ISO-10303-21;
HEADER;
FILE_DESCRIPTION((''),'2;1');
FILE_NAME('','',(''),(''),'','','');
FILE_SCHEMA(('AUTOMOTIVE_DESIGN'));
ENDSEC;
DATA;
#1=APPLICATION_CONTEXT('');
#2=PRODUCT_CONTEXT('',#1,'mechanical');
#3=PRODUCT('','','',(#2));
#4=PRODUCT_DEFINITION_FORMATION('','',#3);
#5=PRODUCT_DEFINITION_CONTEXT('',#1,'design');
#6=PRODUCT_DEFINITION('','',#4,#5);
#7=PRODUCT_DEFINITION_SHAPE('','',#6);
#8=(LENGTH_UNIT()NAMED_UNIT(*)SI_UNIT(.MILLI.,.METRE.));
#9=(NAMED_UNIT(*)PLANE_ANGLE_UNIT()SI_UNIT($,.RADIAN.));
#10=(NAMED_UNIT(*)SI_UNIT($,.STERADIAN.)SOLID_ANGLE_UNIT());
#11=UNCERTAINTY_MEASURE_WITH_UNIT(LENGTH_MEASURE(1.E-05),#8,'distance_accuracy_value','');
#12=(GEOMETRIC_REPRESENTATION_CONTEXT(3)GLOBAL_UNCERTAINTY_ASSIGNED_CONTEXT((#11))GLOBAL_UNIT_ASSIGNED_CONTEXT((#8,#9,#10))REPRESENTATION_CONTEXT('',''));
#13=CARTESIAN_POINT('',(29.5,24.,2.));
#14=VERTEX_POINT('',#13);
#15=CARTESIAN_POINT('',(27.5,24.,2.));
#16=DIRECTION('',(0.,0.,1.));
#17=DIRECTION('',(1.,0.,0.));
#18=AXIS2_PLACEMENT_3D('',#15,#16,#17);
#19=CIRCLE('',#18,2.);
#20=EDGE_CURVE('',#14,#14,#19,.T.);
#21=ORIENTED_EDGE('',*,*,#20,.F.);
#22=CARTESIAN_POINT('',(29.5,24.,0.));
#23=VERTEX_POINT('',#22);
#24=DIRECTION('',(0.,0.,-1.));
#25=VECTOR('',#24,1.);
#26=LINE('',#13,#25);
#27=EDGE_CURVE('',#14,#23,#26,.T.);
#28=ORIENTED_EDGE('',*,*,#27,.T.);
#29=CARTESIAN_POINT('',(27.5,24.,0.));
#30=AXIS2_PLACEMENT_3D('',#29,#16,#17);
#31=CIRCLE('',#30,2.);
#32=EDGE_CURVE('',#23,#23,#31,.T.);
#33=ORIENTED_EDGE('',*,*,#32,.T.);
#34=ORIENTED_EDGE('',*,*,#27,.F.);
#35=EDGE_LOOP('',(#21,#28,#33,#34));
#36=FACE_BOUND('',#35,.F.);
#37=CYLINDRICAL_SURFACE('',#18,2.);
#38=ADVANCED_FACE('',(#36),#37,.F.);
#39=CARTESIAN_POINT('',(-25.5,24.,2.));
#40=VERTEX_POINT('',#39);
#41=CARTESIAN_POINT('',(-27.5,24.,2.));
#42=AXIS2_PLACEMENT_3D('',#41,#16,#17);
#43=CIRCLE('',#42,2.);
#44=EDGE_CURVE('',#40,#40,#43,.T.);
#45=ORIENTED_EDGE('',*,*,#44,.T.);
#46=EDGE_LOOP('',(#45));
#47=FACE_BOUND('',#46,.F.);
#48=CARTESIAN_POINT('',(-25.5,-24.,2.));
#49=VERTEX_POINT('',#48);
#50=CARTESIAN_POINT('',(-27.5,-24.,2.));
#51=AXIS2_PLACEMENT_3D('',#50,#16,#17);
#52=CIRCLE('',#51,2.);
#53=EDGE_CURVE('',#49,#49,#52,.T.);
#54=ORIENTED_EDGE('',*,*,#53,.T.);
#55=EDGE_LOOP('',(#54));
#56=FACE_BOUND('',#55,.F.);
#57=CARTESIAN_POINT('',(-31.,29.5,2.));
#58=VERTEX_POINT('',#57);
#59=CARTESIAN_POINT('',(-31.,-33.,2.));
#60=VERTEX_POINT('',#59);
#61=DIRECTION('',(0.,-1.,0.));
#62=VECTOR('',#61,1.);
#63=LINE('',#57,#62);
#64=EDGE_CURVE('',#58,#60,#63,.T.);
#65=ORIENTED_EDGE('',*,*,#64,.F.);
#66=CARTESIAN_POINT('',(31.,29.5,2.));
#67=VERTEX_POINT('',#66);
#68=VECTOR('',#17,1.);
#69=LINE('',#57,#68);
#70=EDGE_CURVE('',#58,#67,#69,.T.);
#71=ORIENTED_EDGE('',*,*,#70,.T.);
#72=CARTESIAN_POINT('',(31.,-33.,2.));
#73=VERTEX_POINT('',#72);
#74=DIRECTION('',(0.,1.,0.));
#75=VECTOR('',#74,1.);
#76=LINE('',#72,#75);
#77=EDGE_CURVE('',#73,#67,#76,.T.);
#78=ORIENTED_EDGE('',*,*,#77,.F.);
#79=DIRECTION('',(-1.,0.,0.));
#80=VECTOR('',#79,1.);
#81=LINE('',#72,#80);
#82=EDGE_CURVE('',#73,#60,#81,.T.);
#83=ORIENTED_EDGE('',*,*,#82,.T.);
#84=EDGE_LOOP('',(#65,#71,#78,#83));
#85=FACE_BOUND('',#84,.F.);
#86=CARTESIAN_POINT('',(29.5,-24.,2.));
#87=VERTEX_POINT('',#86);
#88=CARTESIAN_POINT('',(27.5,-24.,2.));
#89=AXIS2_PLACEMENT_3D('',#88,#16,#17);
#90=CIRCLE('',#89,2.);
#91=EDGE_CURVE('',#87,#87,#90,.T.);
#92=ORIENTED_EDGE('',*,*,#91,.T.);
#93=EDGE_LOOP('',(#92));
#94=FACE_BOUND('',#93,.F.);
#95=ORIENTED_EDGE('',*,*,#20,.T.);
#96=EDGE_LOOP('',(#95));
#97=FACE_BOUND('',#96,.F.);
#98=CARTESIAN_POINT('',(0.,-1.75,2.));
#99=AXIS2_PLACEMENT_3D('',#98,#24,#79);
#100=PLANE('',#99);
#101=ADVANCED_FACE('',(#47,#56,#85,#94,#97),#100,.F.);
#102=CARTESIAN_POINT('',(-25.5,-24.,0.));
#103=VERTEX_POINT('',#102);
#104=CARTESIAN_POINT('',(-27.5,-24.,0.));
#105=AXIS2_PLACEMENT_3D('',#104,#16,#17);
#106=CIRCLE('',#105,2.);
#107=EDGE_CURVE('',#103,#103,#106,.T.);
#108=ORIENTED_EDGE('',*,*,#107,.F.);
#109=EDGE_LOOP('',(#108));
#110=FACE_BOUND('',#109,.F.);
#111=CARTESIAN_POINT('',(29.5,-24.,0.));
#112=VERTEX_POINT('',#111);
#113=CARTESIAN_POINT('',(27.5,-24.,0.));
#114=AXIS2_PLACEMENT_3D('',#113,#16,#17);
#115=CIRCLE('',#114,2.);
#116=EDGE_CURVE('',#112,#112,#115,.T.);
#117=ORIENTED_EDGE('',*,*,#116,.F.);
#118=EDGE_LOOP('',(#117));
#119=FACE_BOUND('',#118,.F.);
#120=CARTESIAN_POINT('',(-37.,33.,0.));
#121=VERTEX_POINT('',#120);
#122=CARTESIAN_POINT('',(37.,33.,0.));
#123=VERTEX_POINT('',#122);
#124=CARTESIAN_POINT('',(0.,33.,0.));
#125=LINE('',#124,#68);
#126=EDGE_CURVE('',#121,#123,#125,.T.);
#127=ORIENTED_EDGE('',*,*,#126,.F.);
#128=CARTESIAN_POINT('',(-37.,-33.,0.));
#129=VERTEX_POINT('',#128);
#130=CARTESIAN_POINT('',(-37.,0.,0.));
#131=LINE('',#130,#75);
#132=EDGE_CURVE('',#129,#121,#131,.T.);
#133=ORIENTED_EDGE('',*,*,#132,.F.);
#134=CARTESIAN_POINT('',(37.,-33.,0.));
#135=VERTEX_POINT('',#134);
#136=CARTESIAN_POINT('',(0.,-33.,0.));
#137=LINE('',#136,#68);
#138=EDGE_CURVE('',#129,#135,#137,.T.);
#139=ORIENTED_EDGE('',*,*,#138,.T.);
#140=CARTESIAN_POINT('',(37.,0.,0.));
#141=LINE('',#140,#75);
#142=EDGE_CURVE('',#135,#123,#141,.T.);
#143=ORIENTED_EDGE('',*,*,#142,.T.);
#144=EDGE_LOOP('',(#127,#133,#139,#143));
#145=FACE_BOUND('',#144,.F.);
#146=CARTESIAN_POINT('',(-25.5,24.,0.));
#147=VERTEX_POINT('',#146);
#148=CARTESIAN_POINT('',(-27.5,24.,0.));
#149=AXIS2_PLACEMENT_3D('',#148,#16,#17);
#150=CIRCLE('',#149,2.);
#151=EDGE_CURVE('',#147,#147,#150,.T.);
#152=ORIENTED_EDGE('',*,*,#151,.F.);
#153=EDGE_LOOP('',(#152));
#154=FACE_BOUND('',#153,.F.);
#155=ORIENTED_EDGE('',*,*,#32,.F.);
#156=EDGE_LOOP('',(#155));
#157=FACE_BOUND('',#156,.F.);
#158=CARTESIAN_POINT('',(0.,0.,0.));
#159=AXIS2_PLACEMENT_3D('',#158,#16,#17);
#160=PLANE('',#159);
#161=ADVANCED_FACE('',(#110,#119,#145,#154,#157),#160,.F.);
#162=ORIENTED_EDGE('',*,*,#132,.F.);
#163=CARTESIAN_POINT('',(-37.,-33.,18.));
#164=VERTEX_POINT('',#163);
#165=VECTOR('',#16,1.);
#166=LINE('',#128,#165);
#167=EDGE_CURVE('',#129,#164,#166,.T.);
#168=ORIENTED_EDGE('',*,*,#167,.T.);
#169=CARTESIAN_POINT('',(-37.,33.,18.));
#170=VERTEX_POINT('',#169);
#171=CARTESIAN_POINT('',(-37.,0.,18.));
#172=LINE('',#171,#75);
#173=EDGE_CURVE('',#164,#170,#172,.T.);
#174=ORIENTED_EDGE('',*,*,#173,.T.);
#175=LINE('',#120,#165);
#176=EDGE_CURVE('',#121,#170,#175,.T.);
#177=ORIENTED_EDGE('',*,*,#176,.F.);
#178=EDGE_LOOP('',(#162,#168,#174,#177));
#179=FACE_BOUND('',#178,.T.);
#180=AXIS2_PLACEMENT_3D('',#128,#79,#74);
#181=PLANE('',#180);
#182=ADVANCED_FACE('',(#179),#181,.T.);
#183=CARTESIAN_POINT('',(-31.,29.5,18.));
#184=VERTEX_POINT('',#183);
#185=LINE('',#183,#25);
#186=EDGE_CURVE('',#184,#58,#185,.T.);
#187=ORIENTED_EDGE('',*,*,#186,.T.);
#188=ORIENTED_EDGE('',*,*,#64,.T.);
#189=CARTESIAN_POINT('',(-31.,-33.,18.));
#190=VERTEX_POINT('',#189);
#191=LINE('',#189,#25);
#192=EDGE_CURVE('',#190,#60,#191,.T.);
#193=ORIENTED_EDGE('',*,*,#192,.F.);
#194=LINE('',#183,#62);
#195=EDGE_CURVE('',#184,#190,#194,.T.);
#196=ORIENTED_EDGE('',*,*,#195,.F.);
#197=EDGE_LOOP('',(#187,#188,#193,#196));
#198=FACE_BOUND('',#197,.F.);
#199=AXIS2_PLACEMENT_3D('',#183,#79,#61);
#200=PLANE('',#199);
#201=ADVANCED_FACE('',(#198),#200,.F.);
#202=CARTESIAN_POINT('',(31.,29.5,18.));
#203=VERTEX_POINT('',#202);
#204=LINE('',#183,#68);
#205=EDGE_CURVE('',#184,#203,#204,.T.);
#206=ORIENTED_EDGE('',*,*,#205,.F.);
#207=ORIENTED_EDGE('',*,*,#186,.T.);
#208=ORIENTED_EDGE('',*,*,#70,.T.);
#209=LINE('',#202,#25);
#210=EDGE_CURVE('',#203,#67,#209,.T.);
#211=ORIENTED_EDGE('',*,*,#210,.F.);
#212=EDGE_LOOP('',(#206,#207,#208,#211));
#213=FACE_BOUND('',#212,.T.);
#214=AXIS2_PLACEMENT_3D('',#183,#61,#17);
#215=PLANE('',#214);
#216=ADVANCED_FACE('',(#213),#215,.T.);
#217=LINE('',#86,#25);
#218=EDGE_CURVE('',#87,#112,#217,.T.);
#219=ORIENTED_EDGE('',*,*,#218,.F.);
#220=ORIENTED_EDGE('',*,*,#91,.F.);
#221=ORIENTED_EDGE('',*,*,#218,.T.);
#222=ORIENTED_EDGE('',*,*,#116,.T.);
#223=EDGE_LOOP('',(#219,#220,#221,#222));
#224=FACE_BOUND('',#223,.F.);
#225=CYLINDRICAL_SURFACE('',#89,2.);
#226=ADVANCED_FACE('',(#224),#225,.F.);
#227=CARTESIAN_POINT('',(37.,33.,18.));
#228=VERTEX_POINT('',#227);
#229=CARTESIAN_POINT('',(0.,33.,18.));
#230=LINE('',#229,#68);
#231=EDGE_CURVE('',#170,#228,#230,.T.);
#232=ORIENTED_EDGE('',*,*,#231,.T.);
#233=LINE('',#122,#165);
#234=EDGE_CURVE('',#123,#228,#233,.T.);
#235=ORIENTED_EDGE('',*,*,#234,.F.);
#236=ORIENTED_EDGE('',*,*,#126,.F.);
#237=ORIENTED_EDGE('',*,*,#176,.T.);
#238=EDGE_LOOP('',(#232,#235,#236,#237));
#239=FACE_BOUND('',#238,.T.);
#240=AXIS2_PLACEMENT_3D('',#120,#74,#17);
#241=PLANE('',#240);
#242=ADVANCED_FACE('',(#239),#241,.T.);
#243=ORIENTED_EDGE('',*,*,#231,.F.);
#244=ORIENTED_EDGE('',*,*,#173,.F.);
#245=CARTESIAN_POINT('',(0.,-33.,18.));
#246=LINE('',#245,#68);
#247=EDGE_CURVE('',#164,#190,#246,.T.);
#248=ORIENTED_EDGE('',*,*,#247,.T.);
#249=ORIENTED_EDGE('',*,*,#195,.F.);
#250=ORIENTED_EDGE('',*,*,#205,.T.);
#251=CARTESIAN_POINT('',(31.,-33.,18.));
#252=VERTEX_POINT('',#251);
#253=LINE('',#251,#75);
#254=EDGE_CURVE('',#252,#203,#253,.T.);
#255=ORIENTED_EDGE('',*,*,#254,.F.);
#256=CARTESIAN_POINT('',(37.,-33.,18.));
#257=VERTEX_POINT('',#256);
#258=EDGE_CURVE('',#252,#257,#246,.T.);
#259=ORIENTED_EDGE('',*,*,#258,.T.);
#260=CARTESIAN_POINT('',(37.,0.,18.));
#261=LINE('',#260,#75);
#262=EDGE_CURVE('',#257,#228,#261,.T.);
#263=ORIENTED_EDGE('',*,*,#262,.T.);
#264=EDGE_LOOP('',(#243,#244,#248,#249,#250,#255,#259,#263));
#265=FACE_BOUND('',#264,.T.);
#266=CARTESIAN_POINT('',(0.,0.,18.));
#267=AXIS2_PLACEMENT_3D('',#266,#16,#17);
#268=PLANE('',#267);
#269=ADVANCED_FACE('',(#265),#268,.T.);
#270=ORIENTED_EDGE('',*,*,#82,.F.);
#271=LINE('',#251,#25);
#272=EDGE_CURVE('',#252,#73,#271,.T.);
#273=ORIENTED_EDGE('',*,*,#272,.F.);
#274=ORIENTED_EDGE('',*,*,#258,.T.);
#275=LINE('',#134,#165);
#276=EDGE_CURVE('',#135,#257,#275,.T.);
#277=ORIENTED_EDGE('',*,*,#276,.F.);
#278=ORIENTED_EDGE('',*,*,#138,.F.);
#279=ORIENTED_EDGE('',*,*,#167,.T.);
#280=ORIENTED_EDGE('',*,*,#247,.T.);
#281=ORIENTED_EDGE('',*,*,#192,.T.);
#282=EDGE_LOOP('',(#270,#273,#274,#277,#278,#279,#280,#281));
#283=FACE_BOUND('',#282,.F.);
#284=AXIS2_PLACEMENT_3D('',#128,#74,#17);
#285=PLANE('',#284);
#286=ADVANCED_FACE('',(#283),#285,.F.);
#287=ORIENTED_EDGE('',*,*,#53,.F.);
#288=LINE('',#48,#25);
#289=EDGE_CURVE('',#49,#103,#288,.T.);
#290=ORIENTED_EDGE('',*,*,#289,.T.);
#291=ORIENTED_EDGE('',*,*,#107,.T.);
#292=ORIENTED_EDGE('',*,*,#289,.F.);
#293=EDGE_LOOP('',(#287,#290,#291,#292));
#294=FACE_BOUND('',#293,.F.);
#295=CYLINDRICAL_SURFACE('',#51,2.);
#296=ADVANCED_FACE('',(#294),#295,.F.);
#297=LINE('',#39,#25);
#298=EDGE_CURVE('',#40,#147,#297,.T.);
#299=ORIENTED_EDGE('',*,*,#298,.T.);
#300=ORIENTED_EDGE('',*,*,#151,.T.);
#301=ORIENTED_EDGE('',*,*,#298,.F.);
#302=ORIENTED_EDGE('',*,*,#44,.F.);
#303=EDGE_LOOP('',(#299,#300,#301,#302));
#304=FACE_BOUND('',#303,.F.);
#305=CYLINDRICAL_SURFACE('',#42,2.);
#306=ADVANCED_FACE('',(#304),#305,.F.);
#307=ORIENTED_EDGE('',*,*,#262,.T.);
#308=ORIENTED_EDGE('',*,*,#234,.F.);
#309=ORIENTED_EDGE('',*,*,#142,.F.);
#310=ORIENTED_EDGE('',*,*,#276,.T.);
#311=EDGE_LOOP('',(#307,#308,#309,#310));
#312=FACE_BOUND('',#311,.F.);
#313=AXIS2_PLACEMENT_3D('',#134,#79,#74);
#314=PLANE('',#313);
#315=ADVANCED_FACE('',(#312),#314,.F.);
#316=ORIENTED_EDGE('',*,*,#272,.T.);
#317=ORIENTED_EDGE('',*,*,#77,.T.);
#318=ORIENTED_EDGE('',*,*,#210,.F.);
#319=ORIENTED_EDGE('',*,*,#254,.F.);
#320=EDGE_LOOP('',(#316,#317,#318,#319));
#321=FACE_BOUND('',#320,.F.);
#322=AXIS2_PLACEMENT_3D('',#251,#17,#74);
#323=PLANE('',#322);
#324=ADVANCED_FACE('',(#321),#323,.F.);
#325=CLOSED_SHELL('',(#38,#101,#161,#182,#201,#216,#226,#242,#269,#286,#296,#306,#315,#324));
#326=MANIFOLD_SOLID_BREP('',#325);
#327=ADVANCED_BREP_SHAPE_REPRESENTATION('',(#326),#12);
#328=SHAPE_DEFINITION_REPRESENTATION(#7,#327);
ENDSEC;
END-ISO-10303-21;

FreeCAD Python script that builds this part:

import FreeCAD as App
import Part
import Sketcher
from FreeCAD import Vector

doc = App.newDocument("Part")
body = doc.addObject("PartDesign::Body", "Body")

# Sketch on XY plane
sketch1 = doc.addObject("Sketcher::SketchObject", "Sketch")
body.addObject(sketch1)
sketch1.AttachmentSupport = (doc.XY_Plane, [""])
sketch1.MapMode = "FlatFace"
sketch1.addGeometry(Part.LineSegment(Vector(-37, 33, 0), Vector(-37, -33, 0)), False)
sketch1.addGeometry(Part.LineSegment(Vector(-37, -33, 0), Vector(37, -33, 0)), False)
sketch1.addGeometry(Part.LineSegment(Vector(37, -33, 0), Vector(37, 33, 0)), False)
sketch1.addGeometry(Part.LineSegment(Vector(37, 33, 0), Vector(-37, 33, 0)), False)
sketch1.addConstraint(Sketcher.Constraint("Coincident", 0, 2, 1, 1))
sketch1.addConstraint(Sketcher.Constraint("Coincident", 1, 2, 2, 1))
sketch1.addConstraint(Sketcher.Constraint("Coincident", 2, 2, 3, 1))
sketch1.addConstraint(Sketcher.Constraint("Coincident", 3, 2, 0, 1))
sketch1.addConstraint(Sketcher.Constraint("Vertical", 0))
sketch1.addConstraint(Sketcher.Constraint("Horizontal", 1))
sketch1.addConstraint(Sketcher.Constraint("Vertical", 2))
sketch1.addConstraint(Sketcher.Constraint("Horizontal", 3))
sketch1.addConstraint(Sketcher.Constraint("Symmetric", 0, 2, 2, 2, -1, 1))
sketch1.addConstraint(Sketcher.Constraint("DistanceX", 1, 1, 1, 2, 74.0))
sketch1.addConstraint(Sketcher.Constraint("DistanceY", 0, 2, 0, 1, 66.0))
pad1 = doc.addObject("PartDesign::Pad", "Pad")
body.addObject(pad1)
pad1.Profile = sketch1
pad1.Length = 18

# Sketch on XY plane
sketch2 = doc.addObject("Sketcher::SketchObject", "Sketch001")
body.addObject(sketch2)
sketch2.AttachmentSupport = (doc.XY_Plane, [""])
sketch2.MapMode = "FlatFace"
sketch2.AttachmentOffset = App.Placement(Vector(0, 0, 18), App.Rotation())
sketch2.addGeometry(Part.LineSegment(Vector(31, 30, 0), Vector(-31, 30, 0)), False)
sketch2.addGeometry(Part.LineSegment(Vector(-31, 30, 0), Vector(-31, -33, 0)), False)
sketch2.addGeometry(Part.LineSegment(Vector(-31, -33, 0), Vector(31, -33, 0)), False)
sketch2.addGeometry(Part.LineSegment(Vector(31, -33, 0), Vector(31, 30, 0)), False)
sketch2.addConstraint(Sketcher.Constraint("Coincident", 0, 2, 1, 1))
sketch2.addConstraint(Sketcher.Constraint("Coincident", 1, 2, 2, 1))
sketch2.addConstraint(Sketcher.Constraint("Coincident", 2, 2, 3, 1))
sketch2.addConstraint(Sketcher.Constraint("Coincident", 3, 2, 0, 1))
sketch2.addConstraint(Sketcher.Constraint("Horizontal", 0))
sketch2.addConstraint(Sketcher.Constraint("Vertical", 1))
sketch2.addConstraint(Sketcher.Constraint("Horizontal", 2))
sketch2.addConstraint(Sketcher.Constraint("Vertical", 3))
sketch2.addConstraint(Sketcher.Constraint("DistanceX", 0, 2, 0, 1, 62.0))
sketch2.addConstraint(Sketcher.Constraint("DistanceY", 1, 2, 1, 1, 62.5))
sketch2.addConstraint(Sketcher.Constraint("DistanceX", 0, 2, -1, 1, 31.0))
sketch2.addConstraint(Sketcher.Constraint("DistanceY", 1, 2, -1, 1, 33.0))
pocket1 = doc.addObject("PartDesign::Pocket", "Pocket")
body.addObject(pocket1)
pocket1.Profile = sketch2
pocket1.Length = 16

# Sketch on XY plane
sketch3 = doc.addObject("Sketcher::SketchObject", "Sketch002")
body.addObject(sketch3)
sketch3.AttachmentSupport = (doc.XY_Plane, [""])
sketch3.MapMode = "FlatFace"
sketch3.AttachmentOffset = App.Placement(Vector(0, 0, 2), App.Rotation())
sketch3.addGeometry(Part.Circle(Vector(-27.5, 24, 0), Vector(0, 0, 1), 2), False)
sketch3.addGeometry(Part.Circle(Vector(27.5, 24, 0), Vector(0, 0, 1), 2), False)
sketch3.addGeometry(Part.Circle(Vector(27.5, -24, 0), Vector(0, 0, 1), 2), False)
sketch3.addGeometry(Part.Circle(Vector(-27.5, -24, 0), Vector(0, 0, 1), 2), False)
sketch3.addConstraint(Sketcher.Constraint("Equal", 0, 1))
sketch3.addConstraint(Sketcher.Constraint("Equal", 1, 2))
sketch3.addConstraint(Sketcher.Constraint("Equal", 2, 3))
sketch3.addConstraint(Sketcher.Constraint("Symmetric", 0, 3, 2, 3, -1, 1))
sketch3.addConstraint(Sketcher.Constraint("Symmetric", 1, 3, 3, 3, -1, 1))
sketch3.addConstraint(Sketcher.Constraint("Symmetric", 0, 3, 1, 3, -2))
sketch3.addConstraint(Sketcher.Constraint("Diameter", 0, 4.0))
sketch3.addConstraint(Sketcher.Constraint("DistanceY", -1, 1, 0, 3, 24.0))
sketch3.addConstraint(Sketcher.Constraint("DistanceX", 0, 3, 1, 3, 55.0))
pocket2 = doc.addObject("PartDesign::Pocket", "Pocket001")
body.addObject(pocket2)
pocket2.Profile = sketch3
pocket2.Type = "ThroughAll"

doc.recompute()
